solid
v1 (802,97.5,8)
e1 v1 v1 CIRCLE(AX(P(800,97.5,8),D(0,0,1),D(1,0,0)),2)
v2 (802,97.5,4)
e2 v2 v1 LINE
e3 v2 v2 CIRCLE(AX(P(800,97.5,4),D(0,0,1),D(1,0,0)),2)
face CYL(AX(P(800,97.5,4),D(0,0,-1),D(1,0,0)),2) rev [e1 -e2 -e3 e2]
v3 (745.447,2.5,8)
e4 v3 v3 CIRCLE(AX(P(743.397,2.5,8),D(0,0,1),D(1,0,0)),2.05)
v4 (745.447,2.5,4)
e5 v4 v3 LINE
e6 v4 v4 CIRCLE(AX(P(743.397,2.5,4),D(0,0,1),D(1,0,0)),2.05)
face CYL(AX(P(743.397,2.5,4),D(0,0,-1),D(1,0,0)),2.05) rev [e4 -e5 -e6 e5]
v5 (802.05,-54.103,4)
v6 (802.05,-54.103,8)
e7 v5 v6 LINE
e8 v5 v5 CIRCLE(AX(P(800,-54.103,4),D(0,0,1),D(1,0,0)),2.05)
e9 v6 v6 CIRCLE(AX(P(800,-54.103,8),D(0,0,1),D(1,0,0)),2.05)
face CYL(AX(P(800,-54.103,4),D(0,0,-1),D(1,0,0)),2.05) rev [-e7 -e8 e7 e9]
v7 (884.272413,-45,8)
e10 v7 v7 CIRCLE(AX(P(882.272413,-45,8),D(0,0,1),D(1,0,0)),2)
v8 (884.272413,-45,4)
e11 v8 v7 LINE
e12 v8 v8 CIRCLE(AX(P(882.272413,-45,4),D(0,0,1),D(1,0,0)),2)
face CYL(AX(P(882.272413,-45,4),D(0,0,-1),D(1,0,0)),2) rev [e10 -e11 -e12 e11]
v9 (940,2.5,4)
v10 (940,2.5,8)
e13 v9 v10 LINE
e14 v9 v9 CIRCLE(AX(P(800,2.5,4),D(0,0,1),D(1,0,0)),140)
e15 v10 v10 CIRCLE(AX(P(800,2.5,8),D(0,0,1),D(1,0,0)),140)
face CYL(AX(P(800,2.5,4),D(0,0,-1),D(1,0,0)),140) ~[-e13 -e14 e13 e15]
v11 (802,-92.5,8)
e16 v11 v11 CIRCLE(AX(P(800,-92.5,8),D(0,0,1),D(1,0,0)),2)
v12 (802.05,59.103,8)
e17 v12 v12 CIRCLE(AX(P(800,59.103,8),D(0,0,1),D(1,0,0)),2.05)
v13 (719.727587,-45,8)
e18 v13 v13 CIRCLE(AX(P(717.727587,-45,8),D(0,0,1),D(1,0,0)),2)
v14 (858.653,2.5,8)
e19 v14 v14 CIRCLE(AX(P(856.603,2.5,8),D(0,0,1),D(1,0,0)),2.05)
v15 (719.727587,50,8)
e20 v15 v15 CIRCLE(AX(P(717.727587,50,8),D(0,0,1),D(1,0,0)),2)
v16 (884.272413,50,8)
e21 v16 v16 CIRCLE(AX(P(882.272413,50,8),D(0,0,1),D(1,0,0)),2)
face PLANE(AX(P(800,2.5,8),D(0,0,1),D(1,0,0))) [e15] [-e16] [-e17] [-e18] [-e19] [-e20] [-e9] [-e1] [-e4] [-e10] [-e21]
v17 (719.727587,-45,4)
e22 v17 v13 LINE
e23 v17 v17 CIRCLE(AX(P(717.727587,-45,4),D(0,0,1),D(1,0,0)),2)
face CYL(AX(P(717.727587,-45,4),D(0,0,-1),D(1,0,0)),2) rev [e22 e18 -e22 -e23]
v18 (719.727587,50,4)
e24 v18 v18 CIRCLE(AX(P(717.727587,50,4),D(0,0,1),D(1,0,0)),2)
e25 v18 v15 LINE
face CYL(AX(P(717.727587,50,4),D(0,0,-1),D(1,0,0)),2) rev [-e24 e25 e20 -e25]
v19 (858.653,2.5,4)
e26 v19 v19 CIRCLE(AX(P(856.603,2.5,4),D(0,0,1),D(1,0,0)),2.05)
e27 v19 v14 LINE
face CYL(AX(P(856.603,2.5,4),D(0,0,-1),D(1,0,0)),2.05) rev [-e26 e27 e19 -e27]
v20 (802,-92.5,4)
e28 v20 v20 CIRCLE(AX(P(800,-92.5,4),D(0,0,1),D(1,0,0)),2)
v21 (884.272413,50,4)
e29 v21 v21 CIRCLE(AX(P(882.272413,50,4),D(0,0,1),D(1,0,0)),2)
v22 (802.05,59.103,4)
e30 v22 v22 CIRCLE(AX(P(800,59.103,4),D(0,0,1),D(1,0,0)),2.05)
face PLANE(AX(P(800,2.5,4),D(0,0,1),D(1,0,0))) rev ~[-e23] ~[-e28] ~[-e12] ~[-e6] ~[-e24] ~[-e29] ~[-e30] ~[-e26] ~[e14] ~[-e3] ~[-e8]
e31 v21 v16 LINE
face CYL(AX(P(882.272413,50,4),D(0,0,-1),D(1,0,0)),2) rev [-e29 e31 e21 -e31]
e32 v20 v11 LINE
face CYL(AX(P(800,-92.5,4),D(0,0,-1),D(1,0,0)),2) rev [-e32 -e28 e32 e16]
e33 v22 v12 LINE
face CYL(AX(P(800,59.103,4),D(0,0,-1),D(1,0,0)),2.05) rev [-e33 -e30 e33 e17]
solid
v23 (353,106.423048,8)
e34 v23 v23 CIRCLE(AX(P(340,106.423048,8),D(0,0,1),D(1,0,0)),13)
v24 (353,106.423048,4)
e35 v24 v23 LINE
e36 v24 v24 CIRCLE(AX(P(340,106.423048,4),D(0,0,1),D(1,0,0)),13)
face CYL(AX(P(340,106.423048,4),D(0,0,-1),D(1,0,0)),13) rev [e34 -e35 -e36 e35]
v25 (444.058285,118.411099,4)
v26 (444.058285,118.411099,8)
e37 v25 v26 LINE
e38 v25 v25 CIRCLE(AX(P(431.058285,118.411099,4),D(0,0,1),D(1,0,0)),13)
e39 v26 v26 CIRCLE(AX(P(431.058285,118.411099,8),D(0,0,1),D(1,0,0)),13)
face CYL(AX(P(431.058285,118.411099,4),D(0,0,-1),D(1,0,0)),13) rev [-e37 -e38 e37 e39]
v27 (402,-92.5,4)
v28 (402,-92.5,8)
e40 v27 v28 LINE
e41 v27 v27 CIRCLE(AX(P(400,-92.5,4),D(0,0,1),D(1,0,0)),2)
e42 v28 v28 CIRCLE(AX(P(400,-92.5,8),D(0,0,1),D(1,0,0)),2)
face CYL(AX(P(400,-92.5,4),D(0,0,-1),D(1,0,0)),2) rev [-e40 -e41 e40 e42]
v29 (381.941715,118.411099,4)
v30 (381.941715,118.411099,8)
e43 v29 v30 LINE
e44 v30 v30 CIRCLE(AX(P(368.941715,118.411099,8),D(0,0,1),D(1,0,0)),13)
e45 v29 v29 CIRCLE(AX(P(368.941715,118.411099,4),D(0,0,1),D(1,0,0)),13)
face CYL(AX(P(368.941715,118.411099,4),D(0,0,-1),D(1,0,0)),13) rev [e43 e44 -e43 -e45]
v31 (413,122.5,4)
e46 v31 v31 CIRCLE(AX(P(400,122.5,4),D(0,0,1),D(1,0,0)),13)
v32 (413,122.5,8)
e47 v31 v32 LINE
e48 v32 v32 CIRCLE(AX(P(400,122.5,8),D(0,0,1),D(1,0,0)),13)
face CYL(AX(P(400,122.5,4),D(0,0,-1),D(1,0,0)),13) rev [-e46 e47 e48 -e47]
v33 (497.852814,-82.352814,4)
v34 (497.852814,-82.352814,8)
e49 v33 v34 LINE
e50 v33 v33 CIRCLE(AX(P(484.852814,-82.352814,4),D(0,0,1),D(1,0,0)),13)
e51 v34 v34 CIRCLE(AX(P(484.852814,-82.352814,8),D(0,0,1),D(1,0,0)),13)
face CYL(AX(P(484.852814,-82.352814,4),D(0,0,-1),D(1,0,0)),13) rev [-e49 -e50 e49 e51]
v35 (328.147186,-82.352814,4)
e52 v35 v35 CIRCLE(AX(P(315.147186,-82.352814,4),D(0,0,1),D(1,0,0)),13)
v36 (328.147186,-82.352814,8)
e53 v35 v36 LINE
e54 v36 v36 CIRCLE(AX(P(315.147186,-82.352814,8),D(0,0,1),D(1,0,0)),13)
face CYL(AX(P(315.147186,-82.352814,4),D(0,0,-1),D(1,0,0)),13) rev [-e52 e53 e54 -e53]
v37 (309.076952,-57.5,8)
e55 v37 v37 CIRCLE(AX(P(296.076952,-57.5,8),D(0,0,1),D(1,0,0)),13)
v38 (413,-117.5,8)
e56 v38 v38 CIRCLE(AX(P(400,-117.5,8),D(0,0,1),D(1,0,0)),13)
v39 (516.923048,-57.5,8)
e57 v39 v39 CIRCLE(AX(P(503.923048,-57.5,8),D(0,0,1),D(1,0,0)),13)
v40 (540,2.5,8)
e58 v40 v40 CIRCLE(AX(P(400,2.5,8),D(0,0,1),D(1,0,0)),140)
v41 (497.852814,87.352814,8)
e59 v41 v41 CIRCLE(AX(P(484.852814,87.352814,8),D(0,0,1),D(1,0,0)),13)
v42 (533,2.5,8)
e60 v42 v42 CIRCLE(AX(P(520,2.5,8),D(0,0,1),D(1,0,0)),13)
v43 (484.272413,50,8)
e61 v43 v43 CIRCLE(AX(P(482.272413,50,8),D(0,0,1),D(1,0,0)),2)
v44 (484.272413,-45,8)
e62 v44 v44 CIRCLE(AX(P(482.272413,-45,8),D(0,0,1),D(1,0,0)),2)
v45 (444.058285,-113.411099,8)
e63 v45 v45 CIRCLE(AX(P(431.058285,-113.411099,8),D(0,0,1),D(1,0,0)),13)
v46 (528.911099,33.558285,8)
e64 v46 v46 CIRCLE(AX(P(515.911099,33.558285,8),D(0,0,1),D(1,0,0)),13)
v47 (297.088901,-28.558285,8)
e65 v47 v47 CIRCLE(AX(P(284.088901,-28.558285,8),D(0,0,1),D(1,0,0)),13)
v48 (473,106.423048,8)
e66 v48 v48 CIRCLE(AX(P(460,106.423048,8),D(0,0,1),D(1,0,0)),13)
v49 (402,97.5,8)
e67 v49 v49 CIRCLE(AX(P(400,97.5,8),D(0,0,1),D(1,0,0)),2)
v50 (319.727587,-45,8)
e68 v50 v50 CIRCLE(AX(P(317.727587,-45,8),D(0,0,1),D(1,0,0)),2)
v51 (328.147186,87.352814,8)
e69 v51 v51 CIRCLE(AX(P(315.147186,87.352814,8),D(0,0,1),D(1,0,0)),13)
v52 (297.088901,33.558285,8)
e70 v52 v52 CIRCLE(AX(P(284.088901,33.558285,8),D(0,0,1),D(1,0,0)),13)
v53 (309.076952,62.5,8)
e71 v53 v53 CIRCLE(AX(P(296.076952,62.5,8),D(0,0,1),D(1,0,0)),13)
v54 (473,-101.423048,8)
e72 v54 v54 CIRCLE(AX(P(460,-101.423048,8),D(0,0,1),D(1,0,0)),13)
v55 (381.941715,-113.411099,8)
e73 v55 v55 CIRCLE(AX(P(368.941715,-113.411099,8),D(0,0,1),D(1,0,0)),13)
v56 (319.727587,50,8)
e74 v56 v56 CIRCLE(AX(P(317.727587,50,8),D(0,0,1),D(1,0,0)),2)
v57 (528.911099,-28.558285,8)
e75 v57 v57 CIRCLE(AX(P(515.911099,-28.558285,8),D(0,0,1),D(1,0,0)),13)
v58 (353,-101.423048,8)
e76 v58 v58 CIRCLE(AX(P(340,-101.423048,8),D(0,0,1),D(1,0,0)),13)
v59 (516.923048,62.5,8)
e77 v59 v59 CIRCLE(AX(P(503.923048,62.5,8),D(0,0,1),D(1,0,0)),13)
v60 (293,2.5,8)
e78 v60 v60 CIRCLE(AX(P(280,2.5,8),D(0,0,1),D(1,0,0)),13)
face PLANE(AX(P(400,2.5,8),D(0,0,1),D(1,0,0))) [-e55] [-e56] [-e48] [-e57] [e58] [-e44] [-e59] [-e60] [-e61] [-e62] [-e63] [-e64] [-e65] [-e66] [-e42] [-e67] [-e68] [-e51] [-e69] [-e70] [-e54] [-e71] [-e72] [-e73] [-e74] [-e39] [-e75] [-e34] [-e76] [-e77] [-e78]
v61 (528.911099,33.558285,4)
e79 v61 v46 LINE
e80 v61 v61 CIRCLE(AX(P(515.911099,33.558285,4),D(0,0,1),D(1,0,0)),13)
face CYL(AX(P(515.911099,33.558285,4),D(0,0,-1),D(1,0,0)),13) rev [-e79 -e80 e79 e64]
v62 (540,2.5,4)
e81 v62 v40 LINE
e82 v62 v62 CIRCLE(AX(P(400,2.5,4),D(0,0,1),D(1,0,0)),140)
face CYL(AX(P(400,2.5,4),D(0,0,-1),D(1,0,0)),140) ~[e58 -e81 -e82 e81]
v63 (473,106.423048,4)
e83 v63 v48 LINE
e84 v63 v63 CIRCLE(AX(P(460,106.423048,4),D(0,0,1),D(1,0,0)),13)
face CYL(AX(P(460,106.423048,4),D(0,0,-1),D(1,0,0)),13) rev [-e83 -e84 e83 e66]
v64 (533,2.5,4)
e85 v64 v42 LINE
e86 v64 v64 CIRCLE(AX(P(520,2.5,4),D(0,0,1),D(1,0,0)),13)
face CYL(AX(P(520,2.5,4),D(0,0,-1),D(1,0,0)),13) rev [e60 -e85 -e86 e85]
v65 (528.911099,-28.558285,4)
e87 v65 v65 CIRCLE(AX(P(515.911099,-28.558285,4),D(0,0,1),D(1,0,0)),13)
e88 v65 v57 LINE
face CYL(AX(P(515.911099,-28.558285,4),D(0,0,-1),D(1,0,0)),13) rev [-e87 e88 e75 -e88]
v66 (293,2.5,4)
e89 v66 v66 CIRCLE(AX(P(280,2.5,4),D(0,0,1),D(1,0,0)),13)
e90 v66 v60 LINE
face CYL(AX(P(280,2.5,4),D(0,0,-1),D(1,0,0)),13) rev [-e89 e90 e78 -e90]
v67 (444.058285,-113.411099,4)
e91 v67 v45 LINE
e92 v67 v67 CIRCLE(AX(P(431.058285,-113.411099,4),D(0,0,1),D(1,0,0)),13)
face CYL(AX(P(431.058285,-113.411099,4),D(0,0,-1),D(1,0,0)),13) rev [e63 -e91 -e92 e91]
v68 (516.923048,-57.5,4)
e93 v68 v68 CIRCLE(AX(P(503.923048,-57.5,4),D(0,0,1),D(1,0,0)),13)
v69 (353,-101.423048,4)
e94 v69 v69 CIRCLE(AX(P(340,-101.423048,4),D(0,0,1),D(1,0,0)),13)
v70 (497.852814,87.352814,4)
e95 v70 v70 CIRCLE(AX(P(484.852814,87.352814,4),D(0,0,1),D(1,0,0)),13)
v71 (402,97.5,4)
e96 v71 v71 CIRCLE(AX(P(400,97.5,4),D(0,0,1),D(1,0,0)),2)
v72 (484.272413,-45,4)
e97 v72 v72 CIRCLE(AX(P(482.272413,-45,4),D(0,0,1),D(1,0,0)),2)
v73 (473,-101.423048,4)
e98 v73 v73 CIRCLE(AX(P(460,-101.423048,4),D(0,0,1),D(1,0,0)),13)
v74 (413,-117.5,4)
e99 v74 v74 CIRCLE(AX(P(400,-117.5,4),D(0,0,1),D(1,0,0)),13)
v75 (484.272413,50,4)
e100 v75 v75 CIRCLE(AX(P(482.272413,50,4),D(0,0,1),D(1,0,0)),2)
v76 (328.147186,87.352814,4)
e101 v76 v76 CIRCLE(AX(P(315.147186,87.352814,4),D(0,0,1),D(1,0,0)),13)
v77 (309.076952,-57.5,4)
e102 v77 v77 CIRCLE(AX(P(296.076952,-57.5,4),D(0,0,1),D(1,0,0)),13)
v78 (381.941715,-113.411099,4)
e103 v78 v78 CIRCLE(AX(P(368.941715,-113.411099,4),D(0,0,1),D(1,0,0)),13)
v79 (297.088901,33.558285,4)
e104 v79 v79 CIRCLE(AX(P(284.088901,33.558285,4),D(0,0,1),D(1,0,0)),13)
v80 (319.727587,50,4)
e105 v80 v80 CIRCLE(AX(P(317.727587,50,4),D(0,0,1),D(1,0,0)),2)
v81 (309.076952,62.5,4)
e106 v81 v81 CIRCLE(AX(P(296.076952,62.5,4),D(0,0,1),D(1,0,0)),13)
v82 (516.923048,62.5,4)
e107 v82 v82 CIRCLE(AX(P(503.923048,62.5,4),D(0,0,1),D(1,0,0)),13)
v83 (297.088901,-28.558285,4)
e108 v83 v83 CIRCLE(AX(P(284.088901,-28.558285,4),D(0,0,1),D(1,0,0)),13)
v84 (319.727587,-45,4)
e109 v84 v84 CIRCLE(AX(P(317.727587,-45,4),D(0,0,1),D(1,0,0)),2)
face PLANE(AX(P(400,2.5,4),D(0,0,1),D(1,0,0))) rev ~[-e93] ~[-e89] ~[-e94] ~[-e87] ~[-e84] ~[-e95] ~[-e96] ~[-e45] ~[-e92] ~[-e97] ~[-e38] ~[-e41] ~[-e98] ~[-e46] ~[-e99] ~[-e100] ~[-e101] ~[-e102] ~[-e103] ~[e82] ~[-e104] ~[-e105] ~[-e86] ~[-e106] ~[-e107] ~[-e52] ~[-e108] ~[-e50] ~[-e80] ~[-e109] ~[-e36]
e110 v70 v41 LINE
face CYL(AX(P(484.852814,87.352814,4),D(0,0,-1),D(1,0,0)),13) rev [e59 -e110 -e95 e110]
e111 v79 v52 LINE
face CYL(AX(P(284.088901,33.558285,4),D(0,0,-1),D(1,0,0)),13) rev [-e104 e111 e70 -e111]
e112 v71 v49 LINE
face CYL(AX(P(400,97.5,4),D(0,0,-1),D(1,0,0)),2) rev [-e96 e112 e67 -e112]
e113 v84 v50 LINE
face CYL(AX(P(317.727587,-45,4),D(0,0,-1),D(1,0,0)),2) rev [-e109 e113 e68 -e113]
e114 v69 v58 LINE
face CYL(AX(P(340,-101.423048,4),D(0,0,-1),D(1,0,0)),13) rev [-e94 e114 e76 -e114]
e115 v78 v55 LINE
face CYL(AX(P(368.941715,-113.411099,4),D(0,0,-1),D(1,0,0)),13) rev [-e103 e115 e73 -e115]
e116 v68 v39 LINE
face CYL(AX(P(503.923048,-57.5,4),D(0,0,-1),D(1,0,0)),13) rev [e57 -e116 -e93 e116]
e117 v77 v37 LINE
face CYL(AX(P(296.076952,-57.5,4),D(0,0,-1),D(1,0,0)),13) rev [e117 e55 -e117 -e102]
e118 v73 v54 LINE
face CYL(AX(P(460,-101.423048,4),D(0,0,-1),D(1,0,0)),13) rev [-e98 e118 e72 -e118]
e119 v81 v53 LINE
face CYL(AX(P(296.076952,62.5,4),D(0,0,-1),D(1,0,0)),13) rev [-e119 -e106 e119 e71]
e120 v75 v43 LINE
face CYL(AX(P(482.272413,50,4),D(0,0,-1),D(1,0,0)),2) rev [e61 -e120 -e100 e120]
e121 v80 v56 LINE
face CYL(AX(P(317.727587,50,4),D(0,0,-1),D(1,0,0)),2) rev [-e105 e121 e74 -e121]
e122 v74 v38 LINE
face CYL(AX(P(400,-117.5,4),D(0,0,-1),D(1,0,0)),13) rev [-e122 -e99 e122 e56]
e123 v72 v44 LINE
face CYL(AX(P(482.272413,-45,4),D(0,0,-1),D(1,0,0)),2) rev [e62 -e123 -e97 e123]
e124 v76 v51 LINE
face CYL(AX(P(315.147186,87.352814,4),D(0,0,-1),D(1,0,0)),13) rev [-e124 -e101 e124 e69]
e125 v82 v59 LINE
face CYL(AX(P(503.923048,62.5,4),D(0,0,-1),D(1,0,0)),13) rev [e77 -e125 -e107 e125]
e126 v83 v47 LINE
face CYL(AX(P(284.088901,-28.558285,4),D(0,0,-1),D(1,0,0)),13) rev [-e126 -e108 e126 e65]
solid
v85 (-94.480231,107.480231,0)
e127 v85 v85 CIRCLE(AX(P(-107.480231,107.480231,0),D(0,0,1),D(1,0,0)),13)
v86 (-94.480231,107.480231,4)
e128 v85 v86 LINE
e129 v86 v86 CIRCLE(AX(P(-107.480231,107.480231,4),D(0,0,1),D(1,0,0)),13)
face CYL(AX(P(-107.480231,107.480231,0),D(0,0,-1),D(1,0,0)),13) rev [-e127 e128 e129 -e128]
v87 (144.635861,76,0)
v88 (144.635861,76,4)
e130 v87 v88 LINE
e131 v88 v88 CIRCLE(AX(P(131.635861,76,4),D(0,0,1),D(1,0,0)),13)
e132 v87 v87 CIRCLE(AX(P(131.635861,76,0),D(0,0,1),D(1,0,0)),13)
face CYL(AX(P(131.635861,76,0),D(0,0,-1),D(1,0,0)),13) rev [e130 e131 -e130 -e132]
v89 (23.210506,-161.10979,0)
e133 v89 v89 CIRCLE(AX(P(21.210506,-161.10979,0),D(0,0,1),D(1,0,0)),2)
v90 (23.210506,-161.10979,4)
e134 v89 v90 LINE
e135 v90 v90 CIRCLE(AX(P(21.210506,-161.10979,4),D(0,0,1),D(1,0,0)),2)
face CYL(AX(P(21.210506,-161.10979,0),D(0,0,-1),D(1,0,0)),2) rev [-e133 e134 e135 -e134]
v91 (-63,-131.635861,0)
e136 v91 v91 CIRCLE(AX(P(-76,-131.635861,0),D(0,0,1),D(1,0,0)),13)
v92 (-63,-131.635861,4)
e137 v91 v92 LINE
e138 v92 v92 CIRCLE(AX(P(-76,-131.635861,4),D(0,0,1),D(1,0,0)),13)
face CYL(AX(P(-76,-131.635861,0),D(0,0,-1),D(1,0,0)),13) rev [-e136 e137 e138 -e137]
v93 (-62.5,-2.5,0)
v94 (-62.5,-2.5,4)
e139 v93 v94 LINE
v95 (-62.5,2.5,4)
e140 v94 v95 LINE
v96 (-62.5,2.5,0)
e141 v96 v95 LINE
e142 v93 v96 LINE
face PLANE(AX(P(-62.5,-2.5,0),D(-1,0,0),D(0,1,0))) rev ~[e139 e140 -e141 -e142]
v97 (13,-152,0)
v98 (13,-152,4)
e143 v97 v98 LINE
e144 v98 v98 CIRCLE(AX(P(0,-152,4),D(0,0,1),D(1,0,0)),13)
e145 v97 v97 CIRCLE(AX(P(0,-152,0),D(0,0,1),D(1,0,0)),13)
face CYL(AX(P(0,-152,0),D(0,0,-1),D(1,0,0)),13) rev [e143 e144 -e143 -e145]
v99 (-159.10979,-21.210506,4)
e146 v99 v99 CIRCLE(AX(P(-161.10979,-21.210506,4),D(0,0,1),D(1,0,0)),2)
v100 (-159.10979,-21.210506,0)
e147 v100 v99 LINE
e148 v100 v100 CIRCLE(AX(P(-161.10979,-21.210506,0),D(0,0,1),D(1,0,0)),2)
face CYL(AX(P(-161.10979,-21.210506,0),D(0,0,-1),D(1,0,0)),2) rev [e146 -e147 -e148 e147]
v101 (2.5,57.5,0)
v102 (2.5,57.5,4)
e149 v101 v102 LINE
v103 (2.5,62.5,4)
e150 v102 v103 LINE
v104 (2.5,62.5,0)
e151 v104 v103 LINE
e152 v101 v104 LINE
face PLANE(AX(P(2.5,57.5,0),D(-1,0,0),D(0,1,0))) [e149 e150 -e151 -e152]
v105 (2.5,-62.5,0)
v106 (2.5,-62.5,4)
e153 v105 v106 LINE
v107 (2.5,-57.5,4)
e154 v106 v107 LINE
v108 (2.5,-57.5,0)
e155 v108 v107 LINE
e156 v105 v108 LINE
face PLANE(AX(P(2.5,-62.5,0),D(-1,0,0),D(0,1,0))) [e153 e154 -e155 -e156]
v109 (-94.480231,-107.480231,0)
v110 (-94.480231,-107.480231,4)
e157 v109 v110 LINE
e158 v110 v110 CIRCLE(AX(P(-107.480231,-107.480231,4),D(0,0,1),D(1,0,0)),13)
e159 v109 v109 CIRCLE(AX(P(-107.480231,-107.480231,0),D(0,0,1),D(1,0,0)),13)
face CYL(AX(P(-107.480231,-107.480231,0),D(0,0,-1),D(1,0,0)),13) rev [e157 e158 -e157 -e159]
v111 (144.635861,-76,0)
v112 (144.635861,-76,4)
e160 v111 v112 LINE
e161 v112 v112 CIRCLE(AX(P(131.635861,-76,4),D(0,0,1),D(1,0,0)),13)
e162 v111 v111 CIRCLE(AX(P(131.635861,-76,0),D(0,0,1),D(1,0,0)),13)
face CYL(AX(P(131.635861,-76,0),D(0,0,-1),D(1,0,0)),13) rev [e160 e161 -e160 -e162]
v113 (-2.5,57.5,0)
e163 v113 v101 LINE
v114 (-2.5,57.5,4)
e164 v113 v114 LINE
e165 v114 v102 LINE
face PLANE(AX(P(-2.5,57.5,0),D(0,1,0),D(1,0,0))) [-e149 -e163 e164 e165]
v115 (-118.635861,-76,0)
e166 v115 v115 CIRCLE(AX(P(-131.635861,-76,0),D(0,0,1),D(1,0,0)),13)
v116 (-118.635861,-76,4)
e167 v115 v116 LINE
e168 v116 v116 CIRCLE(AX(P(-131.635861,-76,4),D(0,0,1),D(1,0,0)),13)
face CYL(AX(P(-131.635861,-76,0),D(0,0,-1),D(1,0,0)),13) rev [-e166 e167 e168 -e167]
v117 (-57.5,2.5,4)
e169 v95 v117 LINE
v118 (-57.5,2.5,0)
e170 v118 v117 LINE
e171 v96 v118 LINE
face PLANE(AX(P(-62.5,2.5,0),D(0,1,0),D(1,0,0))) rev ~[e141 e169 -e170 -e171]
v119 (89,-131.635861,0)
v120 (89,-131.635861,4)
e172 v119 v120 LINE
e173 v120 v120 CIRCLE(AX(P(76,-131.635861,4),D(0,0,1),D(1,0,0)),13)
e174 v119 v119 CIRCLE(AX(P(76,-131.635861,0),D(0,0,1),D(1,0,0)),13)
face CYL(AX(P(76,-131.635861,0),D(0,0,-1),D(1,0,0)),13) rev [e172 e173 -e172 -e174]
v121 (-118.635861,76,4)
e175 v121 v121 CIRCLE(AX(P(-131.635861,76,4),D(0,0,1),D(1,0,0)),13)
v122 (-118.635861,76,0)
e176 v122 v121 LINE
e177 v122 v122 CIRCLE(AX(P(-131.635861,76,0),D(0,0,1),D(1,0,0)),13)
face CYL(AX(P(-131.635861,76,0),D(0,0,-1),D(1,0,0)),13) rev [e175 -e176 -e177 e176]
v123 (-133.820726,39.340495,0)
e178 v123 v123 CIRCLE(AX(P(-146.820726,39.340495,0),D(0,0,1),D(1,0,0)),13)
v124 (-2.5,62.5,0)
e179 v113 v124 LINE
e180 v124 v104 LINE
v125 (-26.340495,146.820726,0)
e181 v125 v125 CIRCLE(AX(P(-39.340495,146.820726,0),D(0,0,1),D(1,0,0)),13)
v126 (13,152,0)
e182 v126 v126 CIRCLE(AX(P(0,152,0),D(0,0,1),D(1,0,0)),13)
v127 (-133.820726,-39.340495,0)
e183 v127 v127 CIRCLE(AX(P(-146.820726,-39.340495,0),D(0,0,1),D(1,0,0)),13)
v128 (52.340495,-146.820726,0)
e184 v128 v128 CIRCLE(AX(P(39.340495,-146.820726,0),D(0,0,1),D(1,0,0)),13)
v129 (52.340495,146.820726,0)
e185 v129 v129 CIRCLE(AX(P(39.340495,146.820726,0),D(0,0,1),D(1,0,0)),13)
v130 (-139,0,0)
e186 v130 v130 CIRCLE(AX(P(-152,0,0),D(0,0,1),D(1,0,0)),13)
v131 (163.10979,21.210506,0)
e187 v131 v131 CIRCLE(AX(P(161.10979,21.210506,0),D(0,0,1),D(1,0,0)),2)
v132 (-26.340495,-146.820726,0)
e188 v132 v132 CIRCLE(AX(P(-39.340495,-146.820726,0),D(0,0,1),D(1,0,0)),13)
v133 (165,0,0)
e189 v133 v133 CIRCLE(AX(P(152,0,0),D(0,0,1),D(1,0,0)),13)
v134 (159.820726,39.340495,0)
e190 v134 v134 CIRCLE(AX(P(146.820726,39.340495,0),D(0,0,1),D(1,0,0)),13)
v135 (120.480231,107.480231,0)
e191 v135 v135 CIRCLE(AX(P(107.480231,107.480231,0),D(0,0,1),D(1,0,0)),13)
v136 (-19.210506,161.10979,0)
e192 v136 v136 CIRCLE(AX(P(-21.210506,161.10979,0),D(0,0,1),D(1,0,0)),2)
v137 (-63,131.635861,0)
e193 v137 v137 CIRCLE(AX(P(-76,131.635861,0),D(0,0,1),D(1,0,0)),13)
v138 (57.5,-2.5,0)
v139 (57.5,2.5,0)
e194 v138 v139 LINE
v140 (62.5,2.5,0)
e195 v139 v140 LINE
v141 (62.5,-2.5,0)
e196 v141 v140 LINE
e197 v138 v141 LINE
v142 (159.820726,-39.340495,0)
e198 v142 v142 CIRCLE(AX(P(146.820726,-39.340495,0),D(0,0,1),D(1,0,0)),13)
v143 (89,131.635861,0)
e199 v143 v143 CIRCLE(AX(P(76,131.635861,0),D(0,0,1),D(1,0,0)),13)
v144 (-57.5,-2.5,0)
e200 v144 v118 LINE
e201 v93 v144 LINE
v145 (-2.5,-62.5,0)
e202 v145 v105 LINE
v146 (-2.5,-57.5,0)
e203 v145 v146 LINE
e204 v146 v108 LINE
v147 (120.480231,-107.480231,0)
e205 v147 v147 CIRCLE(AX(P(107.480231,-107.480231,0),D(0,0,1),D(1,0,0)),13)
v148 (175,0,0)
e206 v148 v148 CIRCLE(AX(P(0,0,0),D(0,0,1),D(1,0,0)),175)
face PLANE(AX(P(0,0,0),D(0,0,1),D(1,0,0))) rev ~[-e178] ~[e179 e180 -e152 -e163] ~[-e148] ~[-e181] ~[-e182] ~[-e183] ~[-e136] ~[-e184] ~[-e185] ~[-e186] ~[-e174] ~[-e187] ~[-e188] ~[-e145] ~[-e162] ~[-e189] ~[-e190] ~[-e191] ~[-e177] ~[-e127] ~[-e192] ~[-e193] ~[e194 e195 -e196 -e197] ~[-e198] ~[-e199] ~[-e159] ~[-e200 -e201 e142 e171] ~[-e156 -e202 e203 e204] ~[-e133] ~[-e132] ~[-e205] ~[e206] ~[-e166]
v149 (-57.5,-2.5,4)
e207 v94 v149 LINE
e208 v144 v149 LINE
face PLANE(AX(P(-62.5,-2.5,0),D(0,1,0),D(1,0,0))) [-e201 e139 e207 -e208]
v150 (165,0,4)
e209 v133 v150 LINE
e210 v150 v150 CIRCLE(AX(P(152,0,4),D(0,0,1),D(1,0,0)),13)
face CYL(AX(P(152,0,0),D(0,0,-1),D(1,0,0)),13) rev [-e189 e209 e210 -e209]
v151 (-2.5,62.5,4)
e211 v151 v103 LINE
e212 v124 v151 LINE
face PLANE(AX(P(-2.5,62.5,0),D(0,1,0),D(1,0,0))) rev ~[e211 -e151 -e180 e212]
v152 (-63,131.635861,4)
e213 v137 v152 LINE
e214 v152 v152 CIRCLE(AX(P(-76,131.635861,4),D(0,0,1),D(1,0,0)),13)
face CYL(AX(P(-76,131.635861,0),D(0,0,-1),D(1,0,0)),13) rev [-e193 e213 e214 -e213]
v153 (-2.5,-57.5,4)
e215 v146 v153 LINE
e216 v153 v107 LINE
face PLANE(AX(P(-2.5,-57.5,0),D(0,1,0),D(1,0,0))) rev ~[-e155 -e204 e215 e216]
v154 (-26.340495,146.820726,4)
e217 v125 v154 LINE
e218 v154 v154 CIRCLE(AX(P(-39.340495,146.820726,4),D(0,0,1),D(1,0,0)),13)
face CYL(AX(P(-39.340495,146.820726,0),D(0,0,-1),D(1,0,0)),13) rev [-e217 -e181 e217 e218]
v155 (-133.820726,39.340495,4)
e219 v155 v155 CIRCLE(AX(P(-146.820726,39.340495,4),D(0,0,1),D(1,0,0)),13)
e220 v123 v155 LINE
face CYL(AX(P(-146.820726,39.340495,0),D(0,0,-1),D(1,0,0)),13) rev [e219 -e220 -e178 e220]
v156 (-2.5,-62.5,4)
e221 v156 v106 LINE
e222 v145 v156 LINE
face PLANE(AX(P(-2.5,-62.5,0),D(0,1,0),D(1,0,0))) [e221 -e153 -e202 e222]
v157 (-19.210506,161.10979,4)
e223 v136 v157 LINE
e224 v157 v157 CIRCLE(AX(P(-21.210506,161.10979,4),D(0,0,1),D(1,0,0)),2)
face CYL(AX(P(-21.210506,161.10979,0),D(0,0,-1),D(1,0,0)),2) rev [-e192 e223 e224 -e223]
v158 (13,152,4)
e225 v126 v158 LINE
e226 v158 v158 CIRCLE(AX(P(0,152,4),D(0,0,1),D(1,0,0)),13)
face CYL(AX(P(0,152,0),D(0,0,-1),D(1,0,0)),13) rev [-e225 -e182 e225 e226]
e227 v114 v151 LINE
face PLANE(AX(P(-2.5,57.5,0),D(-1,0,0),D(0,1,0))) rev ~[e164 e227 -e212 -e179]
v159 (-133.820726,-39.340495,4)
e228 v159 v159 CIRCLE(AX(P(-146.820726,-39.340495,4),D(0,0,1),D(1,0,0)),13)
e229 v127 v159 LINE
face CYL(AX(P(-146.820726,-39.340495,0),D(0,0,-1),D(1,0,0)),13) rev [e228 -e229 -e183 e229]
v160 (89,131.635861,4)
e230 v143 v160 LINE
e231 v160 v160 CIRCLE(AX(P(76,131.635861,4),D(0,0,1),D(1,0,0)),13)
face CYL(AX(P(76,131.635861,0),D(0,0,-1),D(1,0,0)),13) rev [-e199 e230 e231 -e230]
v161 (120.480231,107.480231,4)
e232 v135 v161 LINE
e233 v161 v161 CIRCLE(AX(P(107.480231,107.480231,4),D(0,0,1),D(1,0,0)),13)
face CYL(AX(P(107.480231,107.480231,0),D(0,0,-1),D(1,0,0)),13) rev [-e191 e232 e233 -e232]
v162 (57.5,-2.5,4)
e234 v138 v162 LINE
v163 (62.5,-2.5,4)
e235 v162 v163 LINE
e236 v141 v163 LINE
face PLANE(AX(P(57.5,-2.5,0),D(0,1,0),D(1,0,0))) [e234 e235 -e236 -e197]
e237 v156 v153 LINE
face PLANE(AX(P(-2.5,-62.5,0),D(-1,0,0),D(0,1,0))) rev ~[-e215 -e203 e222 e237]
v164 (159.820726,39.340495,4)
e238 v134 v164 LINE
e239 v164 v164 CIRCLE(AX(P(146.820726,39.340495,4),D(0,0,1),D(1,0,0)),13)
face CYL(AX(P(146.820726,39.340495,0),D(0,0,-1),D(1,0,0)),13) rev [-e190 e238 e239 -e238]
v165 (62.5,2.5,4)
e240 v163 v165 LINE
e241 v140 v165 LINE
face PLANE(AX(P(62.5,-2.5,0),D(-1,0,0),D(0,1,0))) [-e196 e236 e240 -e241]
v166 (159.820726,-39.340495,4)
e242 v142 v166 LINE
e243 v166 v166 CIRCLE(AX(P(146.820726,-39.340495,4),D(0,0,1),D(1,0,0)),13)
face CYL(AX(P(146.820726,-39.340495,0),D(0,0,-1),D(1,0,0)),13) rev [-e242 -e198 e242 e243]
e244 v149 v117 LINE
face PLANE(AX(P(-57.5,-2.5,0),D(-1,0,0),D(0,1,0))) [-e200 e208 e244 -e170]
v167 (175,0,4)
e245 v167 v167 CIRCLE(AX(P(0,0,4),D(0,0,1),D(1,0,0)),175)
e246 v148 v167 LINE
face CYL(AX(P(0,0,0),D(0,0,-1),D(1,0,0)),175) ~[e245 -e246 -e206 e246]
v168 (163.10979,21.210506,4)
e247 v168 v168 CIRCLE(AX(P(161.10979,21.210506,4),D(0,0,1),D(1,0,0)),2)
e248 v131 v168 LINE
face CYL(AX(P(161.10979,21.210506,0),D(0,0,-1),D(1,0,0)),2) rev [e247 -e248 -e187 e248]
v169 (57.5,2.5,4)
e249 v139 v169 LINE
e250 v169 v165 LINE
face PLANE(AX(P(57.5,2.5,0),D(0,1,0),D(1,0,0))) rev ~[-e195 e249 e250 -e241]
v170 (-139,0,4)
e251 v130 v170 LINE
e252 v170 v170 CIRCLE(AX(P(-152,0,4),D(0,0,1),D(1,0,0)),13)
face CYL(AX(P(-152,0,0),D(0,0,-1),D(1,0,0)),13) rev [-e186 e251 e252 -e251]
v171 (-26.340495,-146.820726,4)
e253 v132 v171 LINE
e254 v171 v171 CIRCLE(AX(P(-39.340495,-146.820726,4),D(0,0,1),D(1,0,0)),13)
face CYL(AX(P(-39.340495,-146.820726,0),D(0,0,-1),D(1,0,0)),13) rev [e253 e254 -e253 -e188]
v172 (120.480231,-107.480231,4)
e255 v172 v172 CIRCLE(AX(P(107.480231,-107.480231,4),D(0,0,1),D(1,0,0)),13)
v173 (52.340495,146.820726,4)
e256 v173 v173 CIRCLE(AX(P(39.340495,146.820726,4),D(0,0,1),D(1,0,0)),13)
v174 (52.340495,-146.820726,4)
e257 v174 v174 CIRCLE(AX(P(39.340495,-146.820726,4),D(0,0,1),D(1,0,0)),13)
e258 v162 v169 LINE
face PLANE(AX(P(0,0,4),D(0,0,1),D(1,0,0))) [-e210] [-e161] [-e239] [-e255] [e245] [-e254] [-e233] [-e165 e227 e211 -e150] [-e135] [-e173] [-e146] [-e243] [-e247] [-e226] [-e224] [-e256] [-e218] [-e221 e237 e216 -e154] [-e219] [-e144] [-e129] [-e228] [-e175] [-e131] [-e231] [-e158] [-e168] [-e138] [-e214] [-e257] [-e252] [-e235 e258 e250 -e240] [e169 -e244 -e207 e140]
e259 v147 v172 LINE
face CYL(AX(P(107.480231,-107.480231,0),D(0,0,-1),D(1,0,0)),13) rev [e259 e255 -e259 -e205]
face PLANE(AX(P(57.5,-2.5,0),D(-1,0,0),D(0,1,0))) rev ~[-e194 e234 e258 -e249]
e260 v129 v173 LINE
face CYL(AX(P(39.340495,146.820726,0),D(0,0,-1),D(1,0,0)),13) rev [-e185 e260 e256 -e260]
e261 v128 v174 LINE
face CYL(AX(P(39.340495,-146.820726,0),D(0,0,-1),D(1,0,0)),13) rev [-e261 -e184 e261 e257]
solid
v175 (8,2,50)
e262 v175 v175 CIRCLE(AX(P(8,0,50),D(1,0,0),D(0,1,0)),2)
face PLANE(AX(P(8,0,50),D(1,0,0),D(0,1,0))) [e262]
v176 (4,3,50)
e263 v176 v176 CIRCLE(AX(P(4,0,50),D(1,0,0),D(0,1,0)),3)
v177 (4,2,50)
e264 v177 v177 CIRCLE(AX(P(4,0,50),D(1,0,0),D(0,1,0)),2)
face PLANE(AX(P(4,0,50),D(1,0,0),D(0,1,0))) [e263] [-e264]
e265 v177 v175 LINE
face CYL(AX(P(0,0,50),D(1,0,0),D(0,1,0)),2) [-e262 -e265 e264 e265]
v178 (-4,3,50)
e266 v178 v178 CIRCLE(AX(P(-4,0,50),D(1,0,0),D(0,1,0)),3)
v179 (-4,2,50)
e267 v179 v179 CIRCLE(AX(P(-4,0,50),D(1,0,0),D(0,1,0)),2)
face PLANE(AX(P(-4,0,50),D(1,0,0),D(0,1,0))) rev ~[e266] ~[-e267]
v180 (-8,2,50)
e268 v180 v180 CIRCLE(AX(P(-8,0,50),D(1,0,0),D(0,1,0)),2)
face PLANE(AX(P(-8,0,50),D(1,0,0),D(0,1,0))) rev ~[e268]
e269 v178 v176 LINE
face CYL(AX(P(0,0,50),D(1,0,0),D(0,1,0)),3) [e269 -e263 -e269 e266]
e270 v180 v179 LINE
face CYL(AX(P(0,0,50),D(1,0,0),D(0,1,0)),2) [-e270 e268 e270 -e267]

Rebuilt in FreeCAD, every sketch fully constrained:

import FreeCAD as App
import Part
import Sketcher

V = App.Vector
Q = App.Units.Quantity

doc = App.newDocument("Part")
body = doc.addObject("PartDesign::Body", "Body")

# Sketch on XY plane
sketch1 = body.newObject("Sketcher::SketchObject", "Sketch")
sketch1.AttachmentSupport = (doc.getObject("XY_Plane"), [""])
sketch1.MapMode = "FlatFace"
sketch1.addGeometry([
    Part.Circle(V(0, 0, 0), V(0, 0, 1), 175),  # 0
    Part.Circle(V(-107.5, -107.5, 0), V(0, 0, 1), 13),  # 1
    Part.Circle(V(-76, -131.6, 0), V(0, 0, 1), 13),  # 2
    Part.Circle(V(-39.3, -146.8, 0), V(0, 0, 1), 13),  # 3
    Part.Circle(V(-131.6, -76, 0), V(0, 0, 1), 13),  # 4
    Part.Circle(V(-146.8, -39.3, 0), V(0, 0, 1), 13),  # 5
    Part.Circle(V(-161.1, -21.2, 0), V(0, 0, 1), 2),  # 6
    Part.Circle(V(0, -152, 0), V(0, 0, 1), 13),  # 7
    Part.Circle(V(21.2, -161.1, 0), V(0, 0, 1), 2),  # 8
    Part.Circle(V(39.3, -146.8, 0), V(0, 0, 1), 13),  # 9
    Part.Circle(V(76, -131.6, 0), V(0, 0, 1), 13),  # 10
    Part.Circle(V(107.5, -107.5, 0), V(0, 0, 1), 13),  # 11
    Part.LineSegment(V(2.5, -62.5, 0), V(-2.5, -62.5, 0)),  # 12
    Part.LineSegment(V(-2.5, -62.5, 0), V(-2.5, -57.5, 0)),  # 13
    Part.LineSegment(V(-2.5, -57.5, 0), V(2.5, -57.5, 0)),  # 14
    Part.LineSegment(V(2.5, -57.5, 0), V(2.5, -62.5, 0)),  # 15
    Part.Circle(V(131.6, -76, 0), V(0, 0, 1), 13),  # 16
    Part.Circle(V(146.8, -39.3, 0), V(0, 0, 1), 13),  # 17
    Part.Circle(V(-152, 0, 0), V(0, 0, 1), 13),  # 18
    Part.Circle(V(-146.8, 39.3, 0), V(0, 0, 1), 13),  # 19
    Part.Circle(V(-131.6, 76, 0), V(0, 0, 1), 13),  # 20
    Part.LineSegment(V(-57.5, -2.5, 0), V(-62.5, -2.5, 0)),  # 21
    Part.LineSegment(V(-62.5, -2.5, 0), V(-62.5, 2.5, 0)),  # 22
    Part.LineSegment(V(-62.5, 2.5, 0), V(-57.5, 2.5, 0)),  # 23
    Part.LineSegment(V(-57.5, 2.5, 0), V(-57.5, -2.5, 0)),  # 24
    Part.Circle(V(-107.5, 107.5, 0), V(0, 0, 1), 13),  # 25
    Part.Circle(V(-76, 131.6, 0), V(0, 0, 1), 13),  # 26
    Part.Circle(V(-39.3, 146.8, 0), V(0, 0, 1), 13),  # 27
    Part.Circle(V(-21.2, 161.1, 0), V(0, 0, 1), 2),  # 28
    Part.LineSegment(V(62.5, -2.5, 0), V(57.5, -2.5, 0)),  # 29
    Part.LineSegment(V(57.5, -2.5, 0), V(57.5, 2.5, 0)),  # 30
    Part.LineSegment(V(57.5, 2.5, 0), V(62.5, 2.5, 0)),  # 31
    Part.LineSegment(V(62.5, 2.5, 0), V(62.5, -2.5, 0)),  # 32
    Part.LineSegment(V(2.5, 57.5, 0), V(-2.5, 57.5, 0)),  # 33
    Part.LineSegment(V(-2.5, 57.5, 0), V(-2.5, 62.5, 0)),  # 34
    Part.LineSegment(V(-2.5, 62.5, 0), V(2.5, 62.5, 0)),  # 35
    Part.LineSegment(V(2.5, 62.5, 0), V(2.5, 57.5, 0)),  # 36
    Part.Circle(V(152, 0, 0), V(0, 0, 1), 13),  # 37
    Part.Circle(V(161.1, 21.2, 0), V(0, 0, 1), 2),  # 38
    Part.Circle(V(146.8, 39.3, 0), V(0, 0, 1), 13),  # 39
    Part.Circle(V(131.6, 76, 0), V(0, 0, 1), 13),  # 40
    Part.Circle(V(0, 152, 0), V(0, 0, 1), 13),  # 41
    Part.Circle(V(39.3, 146.8, 0), V(0, 0, 1), 13),  # 42
    Part.Circle(V(76, 131.6, 0), V(0, 0, 1), 13),  # 43
    Part.Circle(V(107.5, 107.5, 0), V(0, 0, 1), 13),  # 44
], False)
sketch1.addConstraint([
    Sketcher.Constraint("Coincident", 12, 2, 13, 1),
    Sketcher.Constraint("Coincident", 13, 2, 14, 1),
    Sketcher.Constraint("Coincident", 14, 2, 15, 1),
    Sketcher.Constraint("Coincident", 15, 2, 12, 1),
    Sketcher.Constraint("Coincident", 21, 2, 22, 1),
    Sketcher.Constraint("Coincident", 22, 2, 23, 1),
    Sketcher.Constraint("Coincident", 23, 2, 24, 1),
    Sketcher.Constraint("Coincident", 24, 2, 21, 1),
    Sketcher.Constraint("Coincident", 29, 2, 30, 1),
    Sketcher.Constraint("Coincident", 30, 2, 31, 1),
    Sketcher.Constraint("Coincident", 31, 2, 32, 1),
    Sketcher.Constraint("Coincident", 32, 2, 29, 1),
    Sketcher.Constraint("Coincident", 33, 2, 34, 1),
    Sketcher.Constraint("Coincident", 34, 2, 35, 1),
    Sketcher.Constraint("Coincident", 35, 2, 36, 1),
    Sketcher.Constraint("Coincident", 36, 2, 33, 1),
    Sketcher.Constraint("Horizontal", 12),
    Sketcher.Constraint("Vertical", 13),
    Sketcher.Constraint("Horizontal", 14),
    Sketcher.Constraint("Vertical", 15),
    Sketcher.Constraint("Horizontal", 21),
    Sketcher.Constraint("Vertical", 22),
    Sketcher.Constraint("Horizontal", 23),
    Sketcher.Constraint("Vertical", 24),
    Sketcher.Constraint("Horizontal", 29),
    Sketcher.Constraint("Vertical", 30),
    Sketcher.Constraint("Horizontal", 31),
    Sketcher.Constraint("Vertical", 32),
    Sketcher.Constraint("Horizontal", 33),
    Sketcher.Constraint("Vertical", 34),
    Sketcher.Constraint("Horizontal", 35),
    Sketcher.Constraint("Vertical", 36),
    Sketcher.Constraint("Coincident", 0, 3, -1, 1),
    Sketcher.Constraint("Equal", 1, 2),
    Sketcher.Constraint("Equal", 2, 3),
    Sketcher.Constraint("Equal", 3, 4),
    Sketcher.Constraint("Equal", 4, 5),
    Sketcher.Constraint("Equal", 5, 7),
    Sketcher.Constraint("Equal", 6, 8),
    Sketcher.Constraint("Equal", 7, 9),
    Sketcher.Constraint("Equal", 9, 10),
    Sketcher.Constraint("Equal", 10, 11),
    Sketcher.Constraint("Equal", 11, 16),
    Sketcher.Constraint("Equal", 16, 17),
    Sketcher.Constraint("Equal", 17, 18),
    Sketcher.Constraint("Equal", 18, 19),
    Sketcher.Constraint("Equal", 19, 20),
    Sketcher.Constraint("Equal", 20, 25),
    Sketcher.Constraint("Equal", 25, 26),
    Sketcher.Constraint("Equal", 26, 27),
    Sketcher.Constraint("Equal", 8, 28),
    Sketcher.Constraint("Equal", 27, 37),
    Sketcher.Constraint("Equal", 28, 38),
    Sketcher.Constraint("Equal", 37, 39),
    Sketcher.Constraint("Equal", 39, 40),
    Sketcher.Constraint("Equal", 40, 41),
    Sketcher.Constraint("Equal", 41, 42),
    Sketcher.Constraint("Equal", 42, 43),
    Sketcher.Constraint("Equal", 43, 44),
    Sketcher.Constraint("Symmetric", 17, 3, 19, 3, -1, 1),
    Sketcher.Constraint("Symmetric", 16, 3, 20, 3, -1, 1),
    Sketcher.Constraint("Symmetric", 11, 3, 25, 3, -1, 1),
    Sketcher.Constraint("Symmetric", 10, 3, 26, 3, -1, 1),
    Sketcher.Constraint("Symmetric", 9, 3, 27, 3, -1, 1),
    Sketcher.Constraint("Symmetric", 8, 3, 28, 3, -1, 1),
    Sketcher.Constraint("Symmetric", 18, 3, 37, 3, -1, 1),
    Sketcher.Constraint("Symmetric", 6, 3, 38, 3, -1, 1),
    Sketcher.Constraint("Symmetric", 5, 3, 39, 3, -1, 1),
    Sketcher.Constraint("Symmetric", 4, 3, 40, 3, -1, 1),
    Sketcher.Constraint("Symmetric", 7, 3, 41, 3, -1, 1),
    Sketcher.Constraint("Symmetric", 3, 3, 42, 3, -1, 1),
    Sketcher.Constraint("Symmetric", 2, 3, 43, 3, -1, 1),
    Sketcher.Constraint("Symmetric", 1, 3, 44, 3, -1, 1),
    Sketcher.Constraint("Symmetric", 23, 2, 29, 2, -1, 1),
    Sketcher.Constraint("Symmetric", 21, 2, 31, 2, -1, 1),
    Sketcher.Constraint("Symmetric", 14, 2, 33, 2, -1, 1),
    Sketcher.Constraint("Symmetric", 12, 2, 35, 2, -1, 1),
    Sketcher.Constraint("Symmetric", 3, 3, 9, 3, -2),
    Sketcher.Constraint("Symmetric", 2, 3, 10, 3, -2),
    Sketcher.Constraint("Symmetric", 1, 3, 11, 3, -2),
    Sketcher.Constraint("Symmetric", 4, 3, 16, 3, -2),
    Sketcher.Constraint("Symmetric", 5, 3, 17, 3, -2),
    Sketcher.Constraint("PointOnObject", 7, 3, -2),
    Sketcher.Constraint("PointOnObject", 18, 3, -1),
    Sketcher.Constraint("Horizontal", 24, 2, 29, 2),
    Sketcher.Constraint("Vertical", 13, 2, 33, 2),
    Sketcher.Constraint("Equal", 14, 21),
    Sketcher.Constraint("Equal", 35, 13),
    Sketcher.Constraint("Equal", 15, 22),
    Sketcher.Constraint("Diameter", 0, Q("350 mm")),
    Sketcher.Constraint("Diameter", 1, Q("26 mm")),
    Sketcher.Constraint("Diameter", 6, Q("4 mm")),
    Sketcher.Constraint("DistanceX", 12, 2, 12, 1, Q("5 mm")),
    Sketcher.Constraint("DistanceX", 2, 3, -1, 1, Q("76 mm")),
    Sketcher.Constraint("DistanceY", 4, 3, -1, 1, Q("76 mm")),
    Sketcher.Constraint("DistanceY", 7, 3, -1, 1, Q("152 mm")),
    Sketcher.Constraint("DistanceX", 18, 3, -1, 1, Q("152 mm")),
    Sketcher.Constraint("DistanceX", 21, 2, 13, 2, Q("60 mm")),
    Sketcher.Constraint("DistanceY", 13, 2, 21, 2, Q("55 mm")),
    Sketcher.Constraint("DistanceX", 3, 3, 8, 3, Q("60.551001 mm")),
    Sketcher.Constraint("DistanceY", 6, 3, 19, 3, Q("60.551001 mm")),
    Sketcher.Constraint("DistanceX", 1, 3, -1, 1, Q("107.480231 mm")),
    Sketcher.Constraint("DistanceY", 1, 3, -1, 1, Q("107.480231 mm")),
    Sketcher.Constraint("DistanceY", 2, 3, -1, 1, Q("131.635861 mm")),
    Sketcher.Constraint("DistanceX", 4, 3, -1, 1, Q("131.635861 mm")),
    Sketcher.Constraint("DistanceX", 6, 3, -1, 1, Q("161.10979 mm")),
    Sketcher.Constraint("DistanceY", 8, 3, -1, 1, Q("161.10979 mm")),
    Sketcher.Constraint("DistanceX", 5, 3, 3, 3, Q("107.480231 mm")),
    Sketcher.Constraint("DistanceY", 3, 3, 5, 3, Q("107.480231 mm")),
    Sketcher.Constraint("DistanceY", 5, 3, 6, 3, Q("18.129989 mm")),
    Sketcher.Constraint("DistanceX", 8, 3, 9, 3, Q("18.129989 mm")),
])
pad1 = body.newObject("PartDesign::Pad", "Pad")
pad1.Profile = sketch1
pad1.Length = 4
body2 = doc.addObject("PartDesign::Body", "Body001")

# Sketch on YZ plane
sketch2 = body2.newObject("Sketcher::SketchObject", "Sketch001")
sketch2.AttachmentSupport = (doc.getObject("YZ_Plane001"), [""])
sketch2.MapMode = "FlatFace"
sketch2.addGeometry([
    Part.Circle(V(0, 50, 0), V(0, 0, 1), 3),
    Part.Circle(V(0, 50, 0), V(0, 0, 1), 2),
], False)
sketch2.addConstraint([
    Sketcher.Constraint("Coincident", 1, 3, 0, 3),
    Sketcher.Constraint("PointOnObject", 0, 3, -2),
    Sketcher.Constraint("Diameter", 0, Q("6 mm")),
    Sketcher.Constraint("Diameter", 1, Q("4 mm")),
    Sketcher.Constraint("DistanceY", -1, 1, 0, 3, Q("50 mm")),
])
pad2 = body2.newObject("PartDesign::Pad", "Pad001")
pad2.Profile = sketch2
pad2.Length = 8
pad2.Midplane = True

# Sketch on YZ plane
sketch3 = body2.newObject("Sketcher::SketchObject", "Sketch002")
sketch3.AttachmentSupport = (doc.getObject("YZ_Plane001"), [""])
sketch3.MapMode = "FlatFace"
sketch3.addGeometry(Part.Circle(V(0, 50, 0), V(0, 0, 1), 2), False)
sketch3.addConstraint([
    Sketcher.Constraint("PointOnObject", 0, 3, -2),
    Sketcher.Constraint("Diameter", 0, Q("4 mm")),
    Sketcher.Constraint("DistanceY", -1, 1, 0, 3, Q("50 mm")),
])
pad3 = body2.newObject("PartDesign::Pad", "Pad002")
pad3.Profile = sketch3
pad3.Length = 16
pad3.Midplane = True
body3 = doc.addObject("PartDesign::Body", "Body002")

# Sketch on XY plane
sketch4 = body3.newObject("Sketcher::SketchObject", "Sketch003")
sketch4.AttachmentSupport = (doc.getObject("XY_Plane002"), [""])
sketch4.MapMode = "FlatFace"
sketch4.AttachmentOffset = App.Placement(V(0, 0, 4), App.Rotation())
sketch4.addGeometry([
    Part.Circle(V(400, 2.5, 0), V(0, 0, 1), 140),  # 0
    Part.Circle(V(315.1, -82.4, 0), V(0, 0, 1), 13),  # 1
    Part.Circle(V(340, -101.4, 0), V(0, 0, 1), 13),  # 2
    Part.Circle(V(368.9, -113.4, 0), V(0, 0, 1), 13),  # 3
    Part.Circle(V(296.1, -57.5, 0), V(0, 0, 1), 13),  # 4
    Part.Circle(V(317.7, -45, 0), V(0, 0, 1), 2),  # 5
    Part.Circle(V(284.1, -28.6, 0), V(0, 0, 1), 13),  # 6
    Part.Circle(V(400, -117.5, 0), V(0, 0, 1), 13),  # 7
    Part.Circle(V(431.1, -113.4, 0), V(0, 0, 1), 13),  # 8
    Part.Circle(V(460, -101.4, 0), V(0, 0, 1), 13),  # 9
    Part.Circle(V(400, -92.5, 0), V(0, 0, 1), 2),  # 10
    Part.Circle(V(484.9, -82.4, 0), V(0, 0, 1), 13),  # 11
    Part.Circle(V(482.3, -45, 0), V(0, 0, 1), 2),  # 12
    Part.Circle(V(503.9, -57.5, 0), V(0, 0, 1), 13),  # 13
    Part.Circle(V(515.9, -28.6, 0), V(0, 0, 1), 13),  # 14
    Part.Circle(V(280, 2.5, 0), V(0, 0, 1), 13),  # 15
    Part.Circle(V(284.1, 33.6, 0), V(0, 0, 1), 13),  # 16
    Part.Circle(V(296.1, 62.5, 0), V(0, 0, 1), 13),  # 17
    Part.Circle(V(317.7, 50, 0), V(0, 0, 1), 2),  # 18
    Part.Circle(V(315.1, 87.4, 0), V(0, 0, 1), 13),  # 19
    Part.Circle(V(340, 106.4, 0), V(0, 0, 1), 13),  # 20
    Part.Circle(V(368.9, 118.4, 0), V(0, 0, 1), 13),  # 21
    Part.Circle(V(520, 2.5, 0), V(0, 0, 1), 13),  # 22
    Part.Circle(V(515.9, 33.6, 0), V(0, 0, 1), 13),  # 23
    Part.Circle(V(482.3, 50, 0), V(0, 0, 1), 2),  # 24
    Part.Circle(V(503.9, 62.5, 0), V(0, 0, 1), 13),  # 25
    Part.Circle(V(400, 97.5, 0), V(0, 0, 1), 2),  # 26
    Part.Circle(V(431.1, 118.4, 0), V(0, 0, 1), 13),  # 27
    Part.Circle(V(400, 122.5, 0), V(0, 0, 1), 13),  # 28
    Part.Circle(V(460, 106.4, 0), V(0, 0, 1), 13),  # 29
    Part.Circle(V(484.9, 87.4, 0), V(0, 0, 1), 13),  # 30
], False)
sketch4.addConstraint([
    Sketcher.Constraint("Equal", 1, 2),
    Sketcher.Constraint("Equal", 2, 3),
    Sketcher.Constraint("Equal", 3, 4),
    Sketcher.Constraint("Equal", 4, 6),
    Sketcher.Constraint("Equal", 6, 7),
    Sketcher.Constraint("Equal", 7, 8),
    Sketcher.Constraint("Equal", 8, 9),
    Sketcher.Constraint("Equal", 5, 10),
    Sketcher.Constraint("Equal", 9, 11),
    Sketcher.Constraint("Equal", 10, 12),
    Sketcher.Constraint("Equal", 11, 13),
    Sketcher.Constraint("Equal", 13, 14),
    Sketcher.Constraint("Equal", 14, 15),
    Sketcher.Constraint("Equal", 15, 16),
    Sketcher.Constraint("Equal", 16, 17),
    Sketcher.Constraint("Equal", 12, 18),
    Sketcher.Constraint("Equal", 17, 19),
    Sketcher.Constraint("Equal", 19, 20),
    Sketcher.Constraint("Equal", 20, 21),
    Sketcher.Constraint("Equal", 21, 22),
    Sketcher.Constraint("Equal", 22, 23),
    Sketcher.Constraint("Equal", 18, 24),
    Sketcher.Constraint("Equal", 23, 25),
    Sketcher.Constraint("Equal", 24, 26),
    Sketcher.Constraint("Equal", 25, 27),
    Sketcher.Constraint("Equal", 27, 28),
    Sketcher.Constraint("Equal", 28, 29),
    Sketcher.Constraint("Equal", 29, 30),
    Sketcher.Constraint("Horizontal", 3, 3, 8, 3),
    Sketcher.Constraint("Horizontal", 2, 3, 9, 3),
    Sketcher.Constraint("Horizontal", 1, 3, 11, 3),
    Sketcher.Constraint("Horizontal", 5, 3, 12, 3),
    Sketcher.Constraint("Horizontal", 4, 3, 13, 3),
    Sketcher.Constraint("Horizontal", 6, 3, 14, 3),
    Sketcher.Constraint("Horizontal", 0, 3, 15, 3),
    Sketcher.Constraint("Horizontal", 15, 3, 22, 3),
    Sketcher.Constraint("Horizontal", 16, 3, 23, 3),
    Sketcher.Constraint("Horizontal", 18, 3, 24, 3),
    Sketcher.Constraint("Horizontal", 17, 3, 25, 3),
    Sketcher.Constraint("Horizontal", 21, 3, 27, 3),
    Sketcher.Constraint("Horizontal", 20, 3, 29, 3),
    Sketcher.Constraint("Horizontal", 19, 3, 30, 3),
    Sketcher.Constraint("Vertical", 0, 3, 7, 3),
    Sketcher.Constraint("Vertical", 7, 3, 10, 3),
    Sketcher.Constraint("Vertical", 6, 3, 16, 3),
    Sketcher.Constraint("Vertical", 4, 3, 17, 3),
    Sketcher.Constraint("Vertical", 5, 3, 18, 3),
    Sketcher.Constraint("Vertical", 1, 3, 19, 3),
    Sketcher.Constraint("Vertical", 2, 3, 20, 3),
    Sketcher.Constraint("Vertical", 3, 3, 21, 3),
    Sketcher.Constraint("Vertical", 14, 3, 23, 3),
    Sketcher.Constraint("Vertical", 12, 3, 24, 3),
    Sketcher.Constraint("Vertical", 13, 3, 25, 3),
    Sketcher.Constraint("Vertical", 10, 3, 26, 3),
    Sketcher.Constraint("Vertical", 8, 3, 27, 3),
    Sketcher.Constraint("Vertical", 26, 3, 28, 3),
    Sketcher.Constraint("Vertical", 9, 3, 29, 3),
    Sketcher.Constraint("Vertical", 11, 3, 30, 3),
    Sketcher.Constraint("Diameter", 0, Q("280 mm")),
    Sketcher.Constraint("Diameter", 1, Q("26 mm")),
    Sketcher.Constraint("Diameter", 5, Q("4 mm")),
    Sketcher.Constraint("DistanceX", -1, 1, 0, 3, Q("400 mm")),
    Sketcher.Constraint("DistanceX", -1, 1, 2, 3, Q("340 mm")),
    Sketcher.Constraint("DistanceY", 5, 3, -1, 1, Q("45 mm")),
    Sketcher.Constraint("DistanceX", -1, 1, 9, 3, Q("460 mm")),
    Sketcher.Constraint("DistanceX", -1, 1, 15, 3, Q("280 mm")),
    Sketcher.Constraint("DistanceY", -1, 1, 18, 3, Q("50 mm")),
    Sketcher.Constraint("DistanceX", -1, 1, 22, 3, Q("520 mm")),
    Sketcher.Constraint("DistanceY", 4, 3, 0, 3, Q("60 mm")),
    Sketcher.Constraint("DistanceY", 7, 3, 4, 3, Q("60 mm")),
    Sketcher.Constraint("DistanceY", 7, 3, 10, 3, Q("25 mm")),
    Sketcher.Constraint("DistanceY", 15, 3, 17, 3, Q("60 mm")),
    Sketcher.Constraint("DistanceY", 26, 3, 28, 3, Q("25 mm")),
    Sketcher.Constraint("DistanceY", -1, 1, 0, 3, Q("2.5 mm")),
    Sketcher.Constraint("DistanceY", -1, 1, 26, 3, Q("97.5 mm")),
    Sketcher.Constraint("DistanceY", 3, 3, -1, 1, Q("113.411099 mm")),
    Sketcher.Constraint("DistanceX", -1, 1, 6, 3, Q("284.088901 mm")),
    Sketcher.Constraint("DistanceX", -1, 1, 14, 3, Q("515.911099 mm")),
    Sketcher.Constraint("DistanceY", -1, 1, 21, 3, Q("118.411099 mm")),
    Sketcher.Constraint("DistanceX", 1, 3, 5, 3, Q("2.5804 mm")),
    Sketcher.Constraint("DistanceX", 1, 3, 8, 3, Q("115.911099 mm")),
    Sketcher.Constraint("DistanceX", 12, 3, 11, 3, Q("2.5804 mm")),
    Sketcher.Constraint("DistanceY", 1, 3, 16, 3, Q("115.911099 mm")),
    Sketcher.Constraint("DistanceY", 2, 3, -1, 1, Q("101.423048 mm")),
    Sketcher.Constraint("DistanceX", -1, 1, 4, 3, Q("296.076952 mm")),
    Sketcher.Constraint("DistanceX", -1, 1, 13, 3, Q("503.923048 mm")),
    Sketcher.Constraint("DistanceY", -1, 1, 20, 3, Q("106.423048 mm")),
    Sketcher.Constraint("DistanceX", 1, 3, 3, 3, Q("53.794528 mm")),
    Sketcher.Constraint("DistanceY", 1, 3, 6, 3, Q("53.794528 mm")),
    Sketcher.Constraint("DistanceX", 8, 3, 11, 3, Q("53.794528 mm")),
    Sketcher.Constraint("DistanceY", 16, 3, 19, 3, Q("53.794528 mm")),
    Sketcher.Constraint("DistanceX", -1, 1, 1, 3, Q("315.147186 mm")),
    Sketcher.Constraint("DistanceY", 1, 3, -1, 1, Q("82.352814 mm")),
])
pad4 = body3.newObject("PartDesign::Pad", "Pad003")
pad4.Profile = sketch4
pad4.Length = 4
body4 = doc.addObject("PartDesign::Body", "Body003")

# Sketch on XY plane
sketch5 = body4.newObject("Sketcher::SketchObject", "Sketch004")
sketch5.AttachmentSupport = (doc.getObject("XY_Plane003"), [""])
sketch5.MapMode = "FlatFace"
sketch5.AttachmentOffset = App.Placement(V(0, 0, 4), App.Rotation())
sketch5.addGeometry([
    Part.Circle(V(800, 2.5, 0), V(0, 0, 1), 140),  # 0
    Part.Circle(V(717.7, -45, 0), V(0, 0, 1), 2),  # 1
    Part.Circle(V(800, -92.5, 0), V(0, 0, 1), 2),  # 2
    Part.Circle(V(800, -54.1, 0), V(0, 0, 1), 2),  # 3
    Part.Circle(V(882.3, -45, 0), V(0, 0, 1), 2),  # 4
    Part.Circle(V(743.4, 2.5, 0), V(0, 0, 1), 2),  # 5
    Part.Circle(V(717.7, 50, 0), V(0, 0, 1), 2),  # 6
    Part.Circle(V(856.6, 2.5, 0), V(0, 0, 1), 2),  # 7
    Part.Circle(V(882.3, 50, 0), V(0, 0, 1), 2),  # 8
    Part.Circle(V(800, 59.1, 0), V(0, 0, 1), 2),  # 9
    Part.Circle(V(800, 97.5, 0), V(0, 0, 1), 2),  # 10
], False)
sketch5.addConstraint([
    Sketcher.Constraint("Equal", 1, 2),
    Sketcher.Constraint("Equal", 2, 4),
    Sketcher.Constraint("Equal", 3, 5),
    Sketcher.Constraint("Equal", 4, 6),
    Sketcher.Constraint("Equal", 5, 7),
    Sketcher.Constraint("Equal", 6, 8),
    Sketcher.Constraint("Equal", 7, 9),
    Sketcher.Constraint("Equal", 8, 10),
    Sketcher.Constraint("Horizontal", 1, 3, 4, 3),
    Sketcher.Constraint("Horizontal", 0, 3, 5, 3),
    Sketcher.Constraint("Horizontal", 5, 3, 7, 3),
    Sketcher.Constraint("Horizontal", 6, 3, 8, 3),
    Sketcher.Constraint("Vertical", 0, 3, 2, 3),
    Sketcher.Constraint("Vertical", 2, 3, 3, 3),
    Sketcher.Constraint("Vertical", 1, 3, 6, 3),
    Sketcher.Constraint("Vertical", 4, 3, 8, 3),
    Sketcher.Constraint("Vertical", 3, 3, 9, 3),
    Sketcher.Constraint("Vertical", 9, 3, 10, 3),
    Sketcher.Constraint("Diameter", 0, Q("280 mm")),
    Sketcher.Constraint("Diameter", 1, Q("4 mm")),
    Sketcher.Constraint("Diameter", 3, Q("4.1 mm")),
    Sketcher.Constraint("DistanceX", -1, 1, 0, 3, Q("800 mm")),
    Sketcher.Constraint("DistanceY", 1, 3, -1, 1, Q("45 mm")),
    Sketcher.Constraint("DistanceY", -1, 1, 6, 3, Q("50 mm")),
    Sketcher.Constraint("DistanceY", 2, 3, 0, 3, Q("95 mm")),
    Sketcher.Constraint("DistanceY", 0, 3, 10, 3, Q("95 mm")),
    Sketcher.Constraint("DistanceY", -1, 1, 0, 3, Q("2.5 mm")),
    Sketcher.Constraint("DistanceY", 3, 3, -1, 1, Q("54.103 mm")),
    Sketcher.Constraint("DistanceX", -1, 1, 5, 3, Q("743.397 mm")),
    Sketcher.Constraint("DistanceX", -1, 1, 7, 3, Q("856.603 mm")),
    Sketcher.Constraint("DistanceY", -1, 1, 9, 3, Q("59.103 mm")),
    Sketcher.Constraint("DistanceX", -1, 1, 1, 3, Q("717.727587 mm")),
    Sketcher.Constraint("DistanceX", -1, 1, 4, 3, Q("882.272413 mm")),
])
pad5 = body4.newObject("PartDesign::Pad", "Pad004")
pad5.Profile = sketch5
pad5.Length = 4

doc.recompute()
